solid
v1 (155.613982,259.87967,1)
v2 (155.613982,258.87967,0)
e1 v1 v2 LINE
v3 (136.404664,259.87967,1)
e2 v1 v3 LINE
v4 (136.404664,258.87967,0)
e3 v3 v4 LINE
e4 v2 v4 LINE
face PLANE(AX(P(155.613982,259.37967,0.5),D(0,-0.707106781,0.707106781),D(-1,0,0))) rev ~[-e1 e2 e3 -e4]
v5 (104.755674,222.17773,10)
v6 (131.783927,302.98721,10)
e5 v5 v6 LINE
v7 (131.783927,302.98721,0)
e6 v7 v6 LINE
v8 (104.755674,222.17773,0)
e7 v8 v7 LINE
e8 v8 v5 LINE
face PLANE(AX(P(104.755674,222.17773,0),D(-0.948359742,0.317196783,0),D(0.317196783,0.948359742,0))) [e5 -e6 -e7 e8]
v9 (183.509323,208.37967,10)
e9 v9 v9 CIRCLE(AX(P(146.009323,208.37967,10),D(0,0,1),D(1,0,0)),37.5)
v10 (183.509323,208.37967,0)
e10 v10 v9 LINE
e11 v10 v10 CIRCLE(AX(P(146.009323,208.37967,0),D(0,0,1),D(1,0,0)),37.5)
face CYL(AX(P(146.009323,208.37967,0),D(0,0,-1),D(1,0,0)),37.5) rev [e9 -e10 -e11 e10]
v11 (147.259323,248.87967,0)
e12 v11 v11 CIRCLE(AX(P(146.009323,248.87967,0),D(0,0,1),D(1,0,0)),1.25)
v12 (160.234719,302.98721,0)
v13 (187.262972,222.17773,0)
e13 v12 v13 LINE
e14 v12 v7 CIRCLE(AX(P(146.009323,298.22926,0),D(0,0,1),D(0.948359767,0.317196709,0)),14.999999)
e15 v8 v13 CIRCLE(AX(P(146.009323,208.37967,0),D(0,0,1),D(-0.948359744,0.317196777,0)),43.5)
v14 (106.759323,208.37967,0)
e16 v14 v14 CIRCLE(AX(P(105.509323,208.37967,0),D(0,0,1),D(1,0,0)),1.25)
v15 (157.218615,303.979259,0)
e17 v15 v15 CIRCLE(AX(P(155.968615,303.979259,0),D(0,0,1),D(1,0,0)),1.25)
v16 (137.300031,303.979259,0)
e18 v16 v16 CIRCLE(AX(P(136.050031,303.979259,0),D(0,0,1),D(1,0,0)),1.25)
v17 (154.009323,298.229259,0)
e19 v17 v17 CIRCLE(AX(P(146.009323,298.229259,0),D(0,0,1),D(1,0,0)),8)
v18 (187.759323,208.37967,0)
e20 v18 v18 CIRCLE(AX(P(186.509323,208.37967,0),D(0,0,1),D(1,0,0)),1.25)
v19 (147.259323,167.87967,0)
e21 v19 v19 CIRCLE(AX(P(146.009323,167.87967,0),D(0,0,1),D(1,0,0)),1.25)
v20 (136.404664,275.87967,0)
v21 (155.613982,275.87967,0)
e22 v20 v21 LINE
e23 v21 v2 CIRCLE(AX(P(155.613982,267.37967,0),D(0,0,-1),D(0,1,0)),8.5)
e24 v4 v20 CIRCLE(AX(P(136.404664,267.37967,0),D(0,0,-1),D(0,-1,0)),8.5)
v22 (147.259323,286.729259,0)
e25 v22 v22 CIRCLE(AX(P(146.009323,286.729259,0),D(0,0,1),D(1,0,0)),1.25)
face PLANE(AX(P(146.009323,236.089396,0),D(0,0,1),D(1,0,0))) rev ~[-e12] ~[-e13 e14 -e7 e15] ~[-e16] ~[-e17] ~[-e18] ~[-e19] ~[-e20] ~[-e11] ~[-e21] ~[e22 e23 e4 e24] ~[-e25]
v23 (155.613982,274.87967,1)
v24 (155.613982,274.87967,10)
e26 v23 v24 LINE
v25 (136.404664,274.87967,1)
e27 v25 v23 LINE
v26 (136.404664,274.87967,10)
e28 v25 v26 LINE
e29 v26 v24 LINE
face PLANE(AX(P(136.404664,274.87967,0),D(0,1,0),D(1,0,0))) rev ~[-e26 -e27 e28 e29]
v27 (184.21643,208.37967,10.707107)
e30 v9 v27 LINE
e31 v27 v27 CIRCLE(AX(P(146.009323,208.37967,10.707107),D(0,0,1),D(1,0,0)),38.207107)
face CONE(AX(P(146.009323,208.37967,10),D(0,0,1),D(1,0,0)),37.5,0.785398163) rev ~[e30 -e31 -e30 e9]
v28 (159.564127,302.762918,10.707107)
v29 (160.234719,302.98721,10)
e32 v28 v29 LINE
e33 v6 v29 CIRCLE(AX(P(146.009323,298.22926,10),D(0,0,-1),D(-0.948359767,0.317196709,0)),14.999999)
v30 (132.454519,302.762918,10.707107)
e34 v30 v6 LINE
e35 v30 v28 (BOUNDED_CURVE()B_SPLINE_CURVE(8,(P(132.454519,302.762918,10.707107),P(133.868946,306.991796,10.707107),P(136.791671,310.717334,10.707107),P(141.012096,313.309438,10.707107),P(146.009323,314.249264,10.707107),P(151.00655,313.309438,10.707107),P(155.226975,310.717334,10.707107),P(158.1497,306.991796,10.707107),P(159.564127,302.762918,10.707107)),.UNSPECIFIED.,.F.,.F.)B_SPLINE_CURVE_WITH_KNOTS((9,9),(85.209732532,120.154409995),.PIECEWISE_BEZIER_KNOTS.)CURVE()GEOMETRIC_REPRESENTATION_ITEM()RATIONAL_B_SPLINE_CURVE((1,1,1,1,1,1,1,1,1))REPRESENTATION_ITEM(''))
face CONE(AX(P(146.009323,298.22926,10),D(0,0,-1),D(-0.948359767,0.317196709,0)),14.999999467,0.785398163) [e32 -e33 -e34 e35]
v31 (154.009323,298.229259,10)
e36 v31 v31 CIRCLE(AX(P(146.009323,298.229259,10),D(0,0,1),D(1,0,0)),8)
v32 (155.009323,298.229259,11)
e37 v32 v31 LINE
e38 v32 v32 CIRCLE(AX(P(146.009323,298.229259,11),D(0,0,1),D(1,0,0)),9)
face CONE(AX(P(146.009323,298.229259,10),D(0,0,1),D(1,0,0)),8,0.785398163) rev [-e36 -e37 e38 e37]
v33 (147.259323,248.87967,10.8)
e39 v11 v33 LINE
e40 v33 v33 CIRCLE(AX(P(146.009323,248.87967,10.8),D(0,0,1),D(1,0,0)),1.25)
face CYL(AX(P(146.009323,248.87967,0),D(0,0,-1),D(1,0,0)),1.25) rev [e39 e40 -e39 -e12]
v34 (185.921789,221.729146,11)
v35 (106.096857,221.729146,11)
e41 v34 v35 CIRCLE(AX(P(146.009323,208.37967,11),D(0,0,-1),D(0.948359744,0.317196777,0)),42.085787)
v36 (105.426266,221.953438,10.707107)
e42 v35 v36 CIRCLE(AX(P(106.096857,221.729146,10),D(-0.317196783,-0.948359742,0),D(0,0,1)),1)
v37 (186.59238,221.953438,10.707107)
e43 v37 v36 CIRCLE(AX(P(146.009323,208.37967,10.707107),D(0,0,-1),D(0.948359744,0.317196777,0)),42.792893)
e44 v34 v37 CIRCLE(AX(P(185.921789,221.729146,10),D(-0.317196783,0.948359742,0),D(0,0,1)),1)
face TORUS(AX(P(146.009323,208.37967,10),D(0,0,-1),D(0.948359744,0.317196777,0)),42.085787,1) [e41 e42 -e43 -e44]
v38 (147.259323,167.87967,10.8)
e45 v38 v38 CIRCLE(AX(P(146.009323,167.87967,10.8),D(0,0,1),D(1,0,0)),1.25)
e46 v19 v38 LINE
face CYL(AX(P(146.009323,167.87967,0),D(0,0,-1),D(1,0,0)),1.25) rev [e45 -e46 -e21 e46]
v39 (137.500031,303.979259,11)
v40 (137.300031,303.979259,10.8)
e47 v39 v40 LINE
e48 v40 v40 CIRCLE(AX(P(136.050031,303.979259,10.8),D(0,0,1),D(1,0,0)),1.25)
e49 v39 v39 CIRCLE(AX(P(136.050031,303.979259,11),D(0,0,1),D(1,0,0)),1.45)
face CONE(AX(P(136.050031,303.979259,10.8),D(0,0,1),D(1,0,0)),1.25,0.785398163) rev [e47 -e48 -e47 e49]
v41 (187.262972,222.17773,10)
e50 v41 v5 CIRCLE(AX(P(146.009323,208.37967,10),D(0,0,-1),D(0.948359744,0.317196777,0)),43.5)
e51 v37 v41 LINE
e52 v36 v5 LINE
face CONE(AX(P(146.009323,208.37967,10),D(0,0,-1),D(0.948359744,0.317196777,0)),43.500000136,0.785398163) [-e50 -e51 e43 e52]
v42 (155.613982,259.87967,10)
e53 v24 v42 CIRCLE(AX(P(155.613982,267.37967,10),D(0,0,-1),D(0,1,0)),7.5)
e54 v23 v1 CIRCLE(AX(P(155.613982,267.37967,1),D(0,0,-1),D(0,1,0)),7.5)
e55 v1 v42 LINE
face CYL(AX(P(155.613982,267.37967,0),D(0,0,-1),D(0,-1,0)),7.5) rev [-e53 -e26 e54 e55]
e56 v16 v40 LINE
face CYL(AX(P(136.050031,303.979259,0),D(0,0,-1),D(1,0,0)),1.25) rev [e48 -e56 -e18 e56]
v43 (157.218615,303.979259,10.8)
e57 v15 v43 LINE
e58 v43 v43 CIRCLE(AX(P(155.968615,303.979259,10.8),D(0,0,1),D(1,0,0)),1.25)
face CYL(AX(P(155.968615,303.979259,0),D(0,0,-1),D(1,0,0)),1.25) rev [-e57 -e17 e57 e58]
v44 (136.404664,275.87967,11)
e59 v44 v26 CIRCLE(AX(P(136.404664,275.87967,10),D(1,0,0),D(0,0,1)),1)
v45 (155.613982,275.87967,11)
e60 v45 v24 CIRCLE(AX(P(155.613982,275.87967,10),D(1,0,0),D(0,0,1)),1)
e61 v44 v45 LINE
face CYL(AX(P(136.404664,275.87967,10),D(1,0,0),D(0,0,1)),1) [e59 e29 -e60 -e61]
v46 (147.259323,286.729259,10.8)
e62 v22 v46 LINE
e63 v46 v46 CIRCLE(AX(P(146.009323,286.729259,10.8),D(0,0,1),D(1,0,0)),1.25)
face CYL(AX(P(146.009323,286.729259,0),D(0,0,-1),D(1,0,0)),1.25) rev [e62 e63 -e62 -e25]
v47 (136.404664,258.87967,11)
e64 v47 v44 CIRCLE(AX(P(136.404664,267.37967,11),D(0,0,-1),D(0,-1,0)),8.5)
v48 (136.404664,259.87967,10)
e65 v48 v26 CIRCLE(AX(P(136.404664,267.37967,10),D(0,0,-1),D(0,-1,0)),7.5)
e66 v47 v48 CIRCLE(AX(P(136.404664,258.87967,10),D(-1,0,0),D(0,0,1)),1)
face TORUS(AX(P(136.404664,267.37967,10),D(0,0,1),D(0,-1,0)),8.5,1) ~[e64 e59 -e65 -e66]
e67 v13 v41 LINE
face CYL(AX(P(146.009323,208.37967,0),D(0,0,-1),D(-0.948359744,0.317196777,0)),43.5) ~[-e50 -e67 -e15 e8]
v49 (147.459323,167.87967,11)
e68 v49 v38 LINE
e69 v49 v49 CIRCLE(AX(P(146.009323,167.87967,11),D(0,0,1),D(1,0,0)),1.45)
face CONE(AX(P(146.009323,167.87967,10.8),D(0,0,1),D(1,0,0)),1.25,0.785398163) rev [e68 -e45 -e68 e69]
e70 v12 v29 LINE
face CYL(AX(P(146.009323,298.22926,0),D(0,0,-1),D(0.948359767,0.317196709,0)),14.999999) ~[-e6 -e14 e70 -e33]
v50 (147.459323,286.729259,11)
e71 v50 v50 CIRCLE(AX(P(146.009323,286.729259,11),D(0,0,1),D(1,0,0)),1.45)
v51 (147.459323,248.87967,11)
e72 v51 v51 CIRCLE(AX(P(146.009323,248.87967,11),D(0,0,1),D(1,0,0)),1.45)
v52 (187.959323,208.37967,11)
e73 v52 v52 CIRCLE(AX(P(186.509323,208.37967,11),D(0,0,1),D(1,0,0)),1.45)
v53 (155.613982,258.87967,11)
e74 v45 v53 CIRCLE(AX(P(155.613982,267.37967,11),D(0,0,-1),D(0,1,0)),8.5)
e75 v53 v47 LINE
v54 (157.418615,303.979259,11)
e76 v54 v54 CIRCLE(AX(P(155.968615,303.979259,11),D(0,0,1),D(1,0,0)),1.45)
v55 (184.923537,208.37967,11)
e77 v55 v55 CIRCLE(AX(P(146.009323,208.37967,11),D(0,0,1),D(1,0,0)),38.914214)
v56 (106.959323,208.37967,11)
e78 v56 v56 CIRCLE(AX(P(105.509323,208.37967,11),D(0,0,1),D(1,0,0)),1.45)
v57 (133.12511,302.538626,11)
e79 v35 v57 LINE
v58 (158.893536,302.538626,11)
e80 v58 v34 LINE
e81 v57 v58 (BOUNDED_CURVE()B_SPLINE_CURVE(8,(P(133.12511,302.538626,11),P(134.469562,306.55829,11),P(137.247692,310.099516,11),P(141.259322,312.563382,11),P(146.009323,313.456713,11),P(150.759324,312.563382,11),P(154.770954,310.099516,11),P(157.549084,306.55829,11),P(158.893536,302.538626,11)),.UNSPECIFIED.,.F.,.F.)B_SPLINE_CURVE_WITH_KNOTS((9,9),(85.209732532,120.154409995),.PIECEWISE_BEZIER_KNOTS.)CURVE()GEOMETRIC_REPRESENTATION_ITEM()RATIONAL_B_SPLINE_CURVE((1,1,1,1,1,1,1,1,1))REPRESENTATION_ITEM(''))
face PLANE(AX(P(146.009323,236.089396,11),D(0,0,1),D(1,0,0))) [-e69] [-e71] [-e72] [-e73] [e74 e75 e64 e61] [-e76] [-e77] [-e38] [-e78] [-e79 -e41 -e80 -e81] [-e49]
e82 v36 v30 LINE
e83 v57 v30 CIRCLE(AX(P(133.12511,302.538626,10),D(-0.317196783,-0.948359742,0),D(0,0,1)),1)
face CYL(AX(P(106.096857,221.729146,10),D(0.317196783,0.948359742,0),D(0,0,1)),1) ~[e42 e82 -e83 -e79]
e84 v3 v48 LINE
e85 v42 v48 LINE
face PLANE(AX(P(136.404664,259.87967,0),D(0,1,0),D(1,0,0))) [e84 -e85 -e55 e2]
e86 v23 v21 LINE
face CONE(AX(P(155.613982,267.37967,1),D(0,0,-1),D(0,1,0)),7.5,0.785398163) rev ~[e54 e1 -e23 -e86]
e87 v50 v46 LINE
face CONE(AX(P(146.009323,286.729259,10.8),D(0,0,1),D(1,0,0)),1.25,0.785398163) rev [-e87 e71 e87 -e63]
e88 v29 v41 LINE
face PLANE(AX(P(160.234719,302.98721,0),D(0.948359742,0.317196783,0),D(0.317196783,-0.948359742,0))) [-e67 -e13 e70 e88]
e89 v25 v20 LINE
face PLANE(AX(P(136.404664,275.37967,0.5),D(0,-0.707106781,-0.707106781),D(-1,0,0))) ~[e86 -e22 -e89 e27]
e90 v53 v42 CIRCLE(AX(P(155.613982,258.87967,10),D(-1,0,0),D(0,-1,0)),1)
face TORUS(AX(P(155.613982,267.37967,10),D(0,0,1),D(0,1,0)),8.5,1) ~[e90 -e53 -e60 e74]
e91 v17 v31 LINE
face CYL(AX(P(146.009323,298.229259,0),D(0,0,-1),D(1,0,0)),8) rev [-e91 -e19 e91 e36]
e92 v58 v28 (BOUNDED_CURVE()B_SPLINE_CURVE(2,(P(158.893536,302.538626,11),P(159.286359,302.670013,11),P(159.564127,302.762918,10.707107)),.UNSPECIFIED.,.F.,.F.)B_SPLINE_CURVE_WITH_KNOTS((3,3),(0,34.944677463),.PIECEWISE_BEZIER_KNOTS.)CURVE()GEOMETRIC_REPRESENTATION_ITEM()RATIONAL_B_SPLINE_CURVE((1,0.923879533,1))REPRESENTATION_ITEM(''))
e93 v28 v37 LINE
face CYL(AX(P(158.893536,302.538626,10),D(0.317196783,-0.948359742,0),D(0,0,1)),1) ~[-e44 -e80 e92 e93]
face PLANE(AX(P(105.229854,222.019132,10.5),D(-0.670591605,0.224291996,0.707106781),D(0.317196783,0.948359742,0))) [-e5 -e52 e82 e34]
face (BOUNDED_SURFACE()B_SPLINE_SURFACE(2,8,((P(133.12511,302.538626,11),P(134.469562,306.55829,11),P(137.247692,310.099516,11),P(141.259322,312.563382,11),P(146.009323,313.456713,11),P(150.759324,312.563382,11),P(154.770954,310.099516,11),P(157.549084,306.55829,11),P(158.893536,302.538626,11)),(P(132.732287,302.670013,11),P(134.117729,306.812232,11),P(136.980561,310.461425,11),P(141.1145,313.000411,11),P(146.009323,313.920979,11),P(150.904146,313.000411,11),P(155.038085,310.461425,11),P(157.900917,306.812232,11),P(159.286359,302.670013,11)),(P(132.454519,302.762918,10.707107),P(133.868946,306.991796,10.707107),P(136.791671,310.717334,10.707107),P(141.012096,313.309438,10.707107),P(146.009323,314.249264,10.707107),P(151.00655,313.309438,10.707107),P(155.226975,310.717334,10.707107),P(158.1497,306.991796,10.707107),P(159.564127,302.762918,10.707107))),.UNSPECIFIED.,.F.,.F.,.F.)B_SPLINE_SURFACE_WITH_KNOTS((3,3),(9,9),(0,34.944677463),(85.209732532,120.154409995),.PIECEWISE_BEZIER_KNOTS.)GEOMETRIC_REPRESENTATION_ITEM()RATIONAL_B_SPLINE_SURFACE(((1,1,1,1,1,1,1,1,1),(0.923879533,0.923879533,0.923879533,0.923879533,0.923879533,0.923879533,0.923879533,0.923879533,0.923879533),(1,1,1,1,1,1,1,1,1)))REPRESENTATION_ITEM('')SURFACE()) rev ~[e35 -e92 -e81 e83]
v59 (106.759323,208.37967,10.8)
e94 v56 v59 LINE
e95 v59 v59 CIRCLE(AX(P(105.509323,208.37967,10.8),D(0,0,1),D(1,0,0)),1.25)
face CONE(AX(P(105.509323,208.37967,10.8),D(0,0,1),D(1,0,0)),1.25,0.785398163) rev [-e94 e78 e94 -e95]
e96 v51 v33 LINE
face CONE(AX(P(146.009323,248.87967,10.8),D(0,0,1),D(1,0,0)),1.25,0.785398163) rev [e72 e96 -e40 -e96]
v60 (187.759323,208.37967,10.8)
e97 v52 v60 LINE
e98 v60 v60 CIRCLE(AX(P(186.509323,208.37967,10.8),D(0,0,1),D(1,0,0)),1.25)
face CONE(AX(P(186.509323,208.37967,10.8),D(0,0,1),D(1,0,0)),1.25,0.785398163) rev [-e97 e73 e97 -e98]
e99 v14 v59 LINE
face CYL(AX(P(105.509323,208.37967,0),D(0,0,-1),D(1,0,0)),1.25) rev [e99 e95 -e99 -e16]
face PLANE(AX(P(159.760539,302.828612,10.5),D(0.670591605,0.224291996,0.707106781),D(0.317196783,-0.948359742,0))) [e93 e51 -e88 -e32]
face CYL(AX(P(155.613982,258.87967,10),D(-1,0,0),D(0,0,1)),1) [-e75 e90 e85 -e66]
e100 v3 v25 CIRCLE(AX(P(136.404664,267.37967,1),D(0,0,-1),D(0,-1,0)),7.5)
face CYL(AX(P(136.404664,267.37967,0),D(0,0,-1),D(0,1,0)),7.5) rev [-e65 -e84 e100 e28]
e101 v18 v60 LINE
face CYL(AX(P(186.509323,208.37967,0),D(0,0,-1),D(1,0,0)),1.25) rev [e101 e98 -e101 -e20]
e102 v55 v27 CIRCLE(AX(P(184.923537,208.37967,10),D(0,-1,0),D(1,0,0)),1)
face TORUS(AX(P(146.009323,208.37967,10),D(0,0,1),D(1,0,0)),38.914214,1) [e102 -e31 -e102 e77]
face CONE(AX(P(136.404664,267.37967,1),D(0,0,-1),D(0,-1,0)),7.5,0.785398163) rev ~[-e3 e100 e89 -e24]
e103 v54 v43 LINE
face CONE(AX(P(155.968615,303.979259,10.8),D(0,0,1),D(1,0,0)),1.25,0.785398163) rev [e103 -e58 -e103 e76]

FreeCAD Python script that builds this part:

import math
import FreeCAD as App
import Part
import Sketcher
from FreeCAD import Vector


def edges_at(feature, points):
    """Names of the edges that pass closest to the given points."""
    edges = feature.Shape.Edges
    near = lambda p: min(range(len(edges)), key=lambda i: edges[i].distToShape(Part.Vertex(*p))[0])
    return sorted({f"Edge{near(p) + 1}" for p in points})

doc = App.newDocument("Part")
body = doc.addObject("PartDesign::Body", "Body")

# Sketch on XY plane
sketch1 = doc.addObject("Sketcher::SketchObject", "Sketch")
body.addObject(sketch1)
sketch1.AttachmentSupport = (doc.XY_Plane, [""])
sketch1.MapMode = "FlatFace"
sketch1.addGeometry(Part.ArcOfCircle(Part.Circle(Vector(146.009323, 298.22926, 0), Vector(0, 0, 1), 14.999999), math.radians(18.493478), math.radians(161.506522)), False)
sketch1.addGeometry(Part.LineSegment(Vector(131.783927, 302.98721, 0), Vector(104.755674, 222.17773, 0)), False)
sketch1.addGeometry(Part.ArcOfCircle(Part.Circle(Vector(146.009323, 208.37967, 0), Vector(0, 0, 1), 43.5), math.radians(161.506518), math.radians(378.493482)), False)
sketch1.addGeometry(Part.LineSegment(Vector(187.262972, 222.17773, 0), Vector(160.234719, 302.98721, 0)), False)
sketch1.addGeometry(Part.Circle(Vector(105.509323, 208.37967, 0), Vector(0, 0, 1), 1.25), False)
sketch1.addGeometry(Part.Circle(Vector(146.009323, 167.87967, 0), Vector(0, 0, 1), 1.25), False)
sketch1.addGeometry(Part.Circle(Vector(146.009323, 208.37967, 0), Vector(0, 0, 1), 37.5), False)
sketch1.addGeometry(Part.Circle(Vector(186.509323, 208.37967, 0), Vector(0, 0, 1), 1.25), False)
sketch1.addGeometry(Part.Circle(Vector(136.050031, 303.979259, 0), Vector(0, 0, 1), 1.25), False)
sketch1.addGeometry(Part.Circle(Vector(146.009323, 248.87967, 0), Vector(0, 0, 1), 1.25), False)
sketch1.addGeometry(Part.ArcOfCircle(Part.Circle(Vector(136.404664, 267.37967, 0), Vector(0, 0, 1), 7.5), math.radians(90), math.radians(270)), False)
sketch1.addGeometry(Part.LineSegment(Vector(136.404664, 274.87967, 0), Vector(155.613982, 274.87967, 0)), False)
sketch1.addGeometry(Part.ArcOfCircle(Part.Circle(Vector(155.613982, 267.37967, 0), Vector(0, 0, 1), 7.5), math.radians(-90), math.radians(90)), False)
sketch1.addGeometry(Part.LineSegment(Vector(155.613982, 259.87967, 0), Vector(136.404664, 259.87967, 0)), False)
sketch1.addGeometry(Part.Circle(Vector(146.009323, 286.729259, 0), Vector(0, 0, 1), 1.25), False)
sketch1.addGeometry(Part.Circle(Vector(146.009323, 298.229259, 0), Vector(0, 0, 1), 8), False)
sketch1.addGeometry(Part.Circle(Vector(155.968615, 303.979259, 0), Vector(0, 0, 1), 1.25), False)
sketch1.addConstraint(Sketcher.Constraint("Tangent", 0, 2, 1, 1))
sketch1.addConstraint(Sketcher.Constraint("Tangent", 1, 2, 2, 1))
sketch1.addConstraint(Sketcher.Constraint("Tangent", 2, 2, 3, 1))
sketch1.addConstraint(Sketcher.Constraint("Tangent", 3, 2, 0, 1))
sketch1.addConstraint(Sketcher.Constraint("Tangent", 10, 1, 11, 1))
sketch1.addConstraint(Sketcher.Constraint("Tangent", 11, 2, 12, 2))
sketch1.addConstraint(Sketcher.Constraint("Tangent", 12, 1, 13, 1))
sketch1.addConstraint(Sketcher.Constraint("Tangent", 13, 2, 10, 2))
sketch1.addConstraint(Sketcher.Constraint("Horizontal", 11))
sketch1.addConstraint(Sketcher.Constraint("Horizontal", 13))
sketch1.addConstraint(Sketcher.Constraint("Coincident", 6, 3, 2, 3))
sketch1.addConstraint(Sketcher.Constraint("Coincident", 15, 3, 0, 3))
sketch1.addConstraint(Sketcher.Constraint("Equal", 4, 5))
sketch1.addConstraint(Sketcher.Constraint("Equal", 5, 7))
sketch1.addConstraint(Sketcher.Constraint("Equal", 7, 8))
sketch1.addConstraint(Sketcher.Constraint("Equal", 8, 9))
sketch1.addConstraint(Sketcher.Constraint("Equal", 9, 14))
sketch1.addConstraint(Sketcher.Constraint("Equal", 14, 16))
sketch1.addConstraint(Sketcher.Constraint("Horizontal", 2, 3, 4, 3))
sketch1.addConstraint(Sketcher.Constraint("Horizontal", 6, 3, 7, 3))
sketch1.addConstraint(Sketcher.Constraint("Horizontal", 8, 3, 16, 3))
sketch1.addConstraint(Sketcher.Constraint("Horizontal", 1, 2, 2, 2))
sketch1.addConstraint(Sketcher.Constraint("Vertical", 2, 3, 5, 3))
sketch1.addConstraint(Sketcher.Constraint("Vertical", 6, 3, 9, 3))
sketch1.addConstraint(Sketcher.Constraint("Vertical", 9, 3, 14, 3))
sketch1.addConstraint(Sketcher.Constraint("Diameter", 6, 75.0))
sketch1.addConstraint(Sketcher.Constraint("Diameter", 15, 16.0))
sketch1.addConstraint(Sketcher.Constraint("Radius", 0, 14.999999))
sketch1.addConstraint(Sketcher.Constraint("Diameter", 4, 2.5))
sketch1.addConstraint(Sketcher.Constraint("Radius", 2, 43.5))
sketch1.addConstraint(Sketcher.Constraint("Radius", 10, 7.5))
sketch1.addConstraint(Sketcher.Constraint("DistanceX", 4, 3, 7, 3, 81.0))
sketch1.addConstraint(Sketcher.Constraint("DistanceY", 2, 3, 10, 3, 59.0))
sketch1.addConstraint(Sketcher.Constraint("DistanceY", 9, 3, 12, 1, 11.0))
sketch1.addConstraint(Sketcher.Constraint("DistanceX", 4, 3, 2, 3, 40.5))
sketch1.addConstraint(Sketcher.Constraint("DistanceY", 5, 3, 2, 3, 40.5))
sketch1.addConstraint(Sketcher.Constraint("DistanceY", 14, 3, 0, 3, 11.500001))
sketch1.addConstraint(Sketcher.Constraint("DistanceY", 0, 3, 8, 3, 5.749999))
sketch1.addConstraint(Sketcher.Constraint("DistanceX", 11, 1, 11, 2, 19.209318))
sketch1.addConstraint(Sketcher.Constraint("DistanceY", -1, 1, 0, 3, 298.22926))
sketch1.addConstraint(Sketcher.Constraint("DistanceY", -1, 1, 2, 3, 208.37967))
sketch1.addConstraint(Sketcher.Constraint("DistanceX", -1, 1, 8, 3, 136.050031))
sketch1.addConstraint(Sketcher.Constraint("DistanceX", -1, 1, 12, 3, 155.613982))
sketch1.addConstraint(Sketcher.Constraint("DistanceX", -1, 1, 3, 2, 160.234719))
sketch1.addConstraint(Sketcher.Constraint("DistanceX", 0, 2, 16, 3, 24.184688))
pad1 = doc.addObject("PartDesign::Pad", "Pad")
body.addObject(pad1)
pad1.Profile = sketch1
pad1.Length = 11
doc.recompute()

chamfer = doc.addObject("PartDesign::Chamfer", "Chamfer")
body.addObject(chamfer)
chamfer.Base = (pad1, edges_at(pad1, [(108.509, 208.38, 11), (146.009, 274.88, 0)]))
chamfer.Size = 1
doc.recompute()

chamfer2 = doc.addObject("PartDesign::Chamfer", "Chamfer001")
body.addObject(chamfer2)
chamfer2.Base = (chamfer, edges_at(chamfer, [(173.749, 262.582, 11)]))
chamfer2.Size = 1
doc.recompute()

fillet = doc.addObject("PartDesign::Fillet", "Fillet")
body.addObject(fillet)
fillet.Base = (chamfer2, edges_at(chamfer2, [
    (146.009, 274.88, 11),
    (107.509, 208.38, 11),
    (119.218, 262.265, 11),
    (146.009, 165.88, 11),
]))
fillet.Radius = 1
doc.recompute()

chamfer3 = doc.addObject("PartDesign::Chamfer", "Chamfer002")
body.addObject(chamfer3)
chamfer3.Base = (fillet, edges_at(fillet, [
    (144.759, 286.729, 11),
    (134.8, 303.979, 11),
    (154.719, 303.979, 11),
    (185.259, 208.38, 11),
    (144.759, 167.88, 11),
    (104.259, 208.38, 11),
    (144.759, 248.88, 11),
]))
chamfer3.Size = 0.2
doc.recompute()

chamfer4 = doc.addObject("PartDesign::Chamfer", "Chamfer003")
body.addObject(chamfer4)
chamfer4.Base = (chamfer3, edges_at(chamfer3, [(138.009, 298.229, 11)]))
chamfer4.Size = 1

doc.recompute()
